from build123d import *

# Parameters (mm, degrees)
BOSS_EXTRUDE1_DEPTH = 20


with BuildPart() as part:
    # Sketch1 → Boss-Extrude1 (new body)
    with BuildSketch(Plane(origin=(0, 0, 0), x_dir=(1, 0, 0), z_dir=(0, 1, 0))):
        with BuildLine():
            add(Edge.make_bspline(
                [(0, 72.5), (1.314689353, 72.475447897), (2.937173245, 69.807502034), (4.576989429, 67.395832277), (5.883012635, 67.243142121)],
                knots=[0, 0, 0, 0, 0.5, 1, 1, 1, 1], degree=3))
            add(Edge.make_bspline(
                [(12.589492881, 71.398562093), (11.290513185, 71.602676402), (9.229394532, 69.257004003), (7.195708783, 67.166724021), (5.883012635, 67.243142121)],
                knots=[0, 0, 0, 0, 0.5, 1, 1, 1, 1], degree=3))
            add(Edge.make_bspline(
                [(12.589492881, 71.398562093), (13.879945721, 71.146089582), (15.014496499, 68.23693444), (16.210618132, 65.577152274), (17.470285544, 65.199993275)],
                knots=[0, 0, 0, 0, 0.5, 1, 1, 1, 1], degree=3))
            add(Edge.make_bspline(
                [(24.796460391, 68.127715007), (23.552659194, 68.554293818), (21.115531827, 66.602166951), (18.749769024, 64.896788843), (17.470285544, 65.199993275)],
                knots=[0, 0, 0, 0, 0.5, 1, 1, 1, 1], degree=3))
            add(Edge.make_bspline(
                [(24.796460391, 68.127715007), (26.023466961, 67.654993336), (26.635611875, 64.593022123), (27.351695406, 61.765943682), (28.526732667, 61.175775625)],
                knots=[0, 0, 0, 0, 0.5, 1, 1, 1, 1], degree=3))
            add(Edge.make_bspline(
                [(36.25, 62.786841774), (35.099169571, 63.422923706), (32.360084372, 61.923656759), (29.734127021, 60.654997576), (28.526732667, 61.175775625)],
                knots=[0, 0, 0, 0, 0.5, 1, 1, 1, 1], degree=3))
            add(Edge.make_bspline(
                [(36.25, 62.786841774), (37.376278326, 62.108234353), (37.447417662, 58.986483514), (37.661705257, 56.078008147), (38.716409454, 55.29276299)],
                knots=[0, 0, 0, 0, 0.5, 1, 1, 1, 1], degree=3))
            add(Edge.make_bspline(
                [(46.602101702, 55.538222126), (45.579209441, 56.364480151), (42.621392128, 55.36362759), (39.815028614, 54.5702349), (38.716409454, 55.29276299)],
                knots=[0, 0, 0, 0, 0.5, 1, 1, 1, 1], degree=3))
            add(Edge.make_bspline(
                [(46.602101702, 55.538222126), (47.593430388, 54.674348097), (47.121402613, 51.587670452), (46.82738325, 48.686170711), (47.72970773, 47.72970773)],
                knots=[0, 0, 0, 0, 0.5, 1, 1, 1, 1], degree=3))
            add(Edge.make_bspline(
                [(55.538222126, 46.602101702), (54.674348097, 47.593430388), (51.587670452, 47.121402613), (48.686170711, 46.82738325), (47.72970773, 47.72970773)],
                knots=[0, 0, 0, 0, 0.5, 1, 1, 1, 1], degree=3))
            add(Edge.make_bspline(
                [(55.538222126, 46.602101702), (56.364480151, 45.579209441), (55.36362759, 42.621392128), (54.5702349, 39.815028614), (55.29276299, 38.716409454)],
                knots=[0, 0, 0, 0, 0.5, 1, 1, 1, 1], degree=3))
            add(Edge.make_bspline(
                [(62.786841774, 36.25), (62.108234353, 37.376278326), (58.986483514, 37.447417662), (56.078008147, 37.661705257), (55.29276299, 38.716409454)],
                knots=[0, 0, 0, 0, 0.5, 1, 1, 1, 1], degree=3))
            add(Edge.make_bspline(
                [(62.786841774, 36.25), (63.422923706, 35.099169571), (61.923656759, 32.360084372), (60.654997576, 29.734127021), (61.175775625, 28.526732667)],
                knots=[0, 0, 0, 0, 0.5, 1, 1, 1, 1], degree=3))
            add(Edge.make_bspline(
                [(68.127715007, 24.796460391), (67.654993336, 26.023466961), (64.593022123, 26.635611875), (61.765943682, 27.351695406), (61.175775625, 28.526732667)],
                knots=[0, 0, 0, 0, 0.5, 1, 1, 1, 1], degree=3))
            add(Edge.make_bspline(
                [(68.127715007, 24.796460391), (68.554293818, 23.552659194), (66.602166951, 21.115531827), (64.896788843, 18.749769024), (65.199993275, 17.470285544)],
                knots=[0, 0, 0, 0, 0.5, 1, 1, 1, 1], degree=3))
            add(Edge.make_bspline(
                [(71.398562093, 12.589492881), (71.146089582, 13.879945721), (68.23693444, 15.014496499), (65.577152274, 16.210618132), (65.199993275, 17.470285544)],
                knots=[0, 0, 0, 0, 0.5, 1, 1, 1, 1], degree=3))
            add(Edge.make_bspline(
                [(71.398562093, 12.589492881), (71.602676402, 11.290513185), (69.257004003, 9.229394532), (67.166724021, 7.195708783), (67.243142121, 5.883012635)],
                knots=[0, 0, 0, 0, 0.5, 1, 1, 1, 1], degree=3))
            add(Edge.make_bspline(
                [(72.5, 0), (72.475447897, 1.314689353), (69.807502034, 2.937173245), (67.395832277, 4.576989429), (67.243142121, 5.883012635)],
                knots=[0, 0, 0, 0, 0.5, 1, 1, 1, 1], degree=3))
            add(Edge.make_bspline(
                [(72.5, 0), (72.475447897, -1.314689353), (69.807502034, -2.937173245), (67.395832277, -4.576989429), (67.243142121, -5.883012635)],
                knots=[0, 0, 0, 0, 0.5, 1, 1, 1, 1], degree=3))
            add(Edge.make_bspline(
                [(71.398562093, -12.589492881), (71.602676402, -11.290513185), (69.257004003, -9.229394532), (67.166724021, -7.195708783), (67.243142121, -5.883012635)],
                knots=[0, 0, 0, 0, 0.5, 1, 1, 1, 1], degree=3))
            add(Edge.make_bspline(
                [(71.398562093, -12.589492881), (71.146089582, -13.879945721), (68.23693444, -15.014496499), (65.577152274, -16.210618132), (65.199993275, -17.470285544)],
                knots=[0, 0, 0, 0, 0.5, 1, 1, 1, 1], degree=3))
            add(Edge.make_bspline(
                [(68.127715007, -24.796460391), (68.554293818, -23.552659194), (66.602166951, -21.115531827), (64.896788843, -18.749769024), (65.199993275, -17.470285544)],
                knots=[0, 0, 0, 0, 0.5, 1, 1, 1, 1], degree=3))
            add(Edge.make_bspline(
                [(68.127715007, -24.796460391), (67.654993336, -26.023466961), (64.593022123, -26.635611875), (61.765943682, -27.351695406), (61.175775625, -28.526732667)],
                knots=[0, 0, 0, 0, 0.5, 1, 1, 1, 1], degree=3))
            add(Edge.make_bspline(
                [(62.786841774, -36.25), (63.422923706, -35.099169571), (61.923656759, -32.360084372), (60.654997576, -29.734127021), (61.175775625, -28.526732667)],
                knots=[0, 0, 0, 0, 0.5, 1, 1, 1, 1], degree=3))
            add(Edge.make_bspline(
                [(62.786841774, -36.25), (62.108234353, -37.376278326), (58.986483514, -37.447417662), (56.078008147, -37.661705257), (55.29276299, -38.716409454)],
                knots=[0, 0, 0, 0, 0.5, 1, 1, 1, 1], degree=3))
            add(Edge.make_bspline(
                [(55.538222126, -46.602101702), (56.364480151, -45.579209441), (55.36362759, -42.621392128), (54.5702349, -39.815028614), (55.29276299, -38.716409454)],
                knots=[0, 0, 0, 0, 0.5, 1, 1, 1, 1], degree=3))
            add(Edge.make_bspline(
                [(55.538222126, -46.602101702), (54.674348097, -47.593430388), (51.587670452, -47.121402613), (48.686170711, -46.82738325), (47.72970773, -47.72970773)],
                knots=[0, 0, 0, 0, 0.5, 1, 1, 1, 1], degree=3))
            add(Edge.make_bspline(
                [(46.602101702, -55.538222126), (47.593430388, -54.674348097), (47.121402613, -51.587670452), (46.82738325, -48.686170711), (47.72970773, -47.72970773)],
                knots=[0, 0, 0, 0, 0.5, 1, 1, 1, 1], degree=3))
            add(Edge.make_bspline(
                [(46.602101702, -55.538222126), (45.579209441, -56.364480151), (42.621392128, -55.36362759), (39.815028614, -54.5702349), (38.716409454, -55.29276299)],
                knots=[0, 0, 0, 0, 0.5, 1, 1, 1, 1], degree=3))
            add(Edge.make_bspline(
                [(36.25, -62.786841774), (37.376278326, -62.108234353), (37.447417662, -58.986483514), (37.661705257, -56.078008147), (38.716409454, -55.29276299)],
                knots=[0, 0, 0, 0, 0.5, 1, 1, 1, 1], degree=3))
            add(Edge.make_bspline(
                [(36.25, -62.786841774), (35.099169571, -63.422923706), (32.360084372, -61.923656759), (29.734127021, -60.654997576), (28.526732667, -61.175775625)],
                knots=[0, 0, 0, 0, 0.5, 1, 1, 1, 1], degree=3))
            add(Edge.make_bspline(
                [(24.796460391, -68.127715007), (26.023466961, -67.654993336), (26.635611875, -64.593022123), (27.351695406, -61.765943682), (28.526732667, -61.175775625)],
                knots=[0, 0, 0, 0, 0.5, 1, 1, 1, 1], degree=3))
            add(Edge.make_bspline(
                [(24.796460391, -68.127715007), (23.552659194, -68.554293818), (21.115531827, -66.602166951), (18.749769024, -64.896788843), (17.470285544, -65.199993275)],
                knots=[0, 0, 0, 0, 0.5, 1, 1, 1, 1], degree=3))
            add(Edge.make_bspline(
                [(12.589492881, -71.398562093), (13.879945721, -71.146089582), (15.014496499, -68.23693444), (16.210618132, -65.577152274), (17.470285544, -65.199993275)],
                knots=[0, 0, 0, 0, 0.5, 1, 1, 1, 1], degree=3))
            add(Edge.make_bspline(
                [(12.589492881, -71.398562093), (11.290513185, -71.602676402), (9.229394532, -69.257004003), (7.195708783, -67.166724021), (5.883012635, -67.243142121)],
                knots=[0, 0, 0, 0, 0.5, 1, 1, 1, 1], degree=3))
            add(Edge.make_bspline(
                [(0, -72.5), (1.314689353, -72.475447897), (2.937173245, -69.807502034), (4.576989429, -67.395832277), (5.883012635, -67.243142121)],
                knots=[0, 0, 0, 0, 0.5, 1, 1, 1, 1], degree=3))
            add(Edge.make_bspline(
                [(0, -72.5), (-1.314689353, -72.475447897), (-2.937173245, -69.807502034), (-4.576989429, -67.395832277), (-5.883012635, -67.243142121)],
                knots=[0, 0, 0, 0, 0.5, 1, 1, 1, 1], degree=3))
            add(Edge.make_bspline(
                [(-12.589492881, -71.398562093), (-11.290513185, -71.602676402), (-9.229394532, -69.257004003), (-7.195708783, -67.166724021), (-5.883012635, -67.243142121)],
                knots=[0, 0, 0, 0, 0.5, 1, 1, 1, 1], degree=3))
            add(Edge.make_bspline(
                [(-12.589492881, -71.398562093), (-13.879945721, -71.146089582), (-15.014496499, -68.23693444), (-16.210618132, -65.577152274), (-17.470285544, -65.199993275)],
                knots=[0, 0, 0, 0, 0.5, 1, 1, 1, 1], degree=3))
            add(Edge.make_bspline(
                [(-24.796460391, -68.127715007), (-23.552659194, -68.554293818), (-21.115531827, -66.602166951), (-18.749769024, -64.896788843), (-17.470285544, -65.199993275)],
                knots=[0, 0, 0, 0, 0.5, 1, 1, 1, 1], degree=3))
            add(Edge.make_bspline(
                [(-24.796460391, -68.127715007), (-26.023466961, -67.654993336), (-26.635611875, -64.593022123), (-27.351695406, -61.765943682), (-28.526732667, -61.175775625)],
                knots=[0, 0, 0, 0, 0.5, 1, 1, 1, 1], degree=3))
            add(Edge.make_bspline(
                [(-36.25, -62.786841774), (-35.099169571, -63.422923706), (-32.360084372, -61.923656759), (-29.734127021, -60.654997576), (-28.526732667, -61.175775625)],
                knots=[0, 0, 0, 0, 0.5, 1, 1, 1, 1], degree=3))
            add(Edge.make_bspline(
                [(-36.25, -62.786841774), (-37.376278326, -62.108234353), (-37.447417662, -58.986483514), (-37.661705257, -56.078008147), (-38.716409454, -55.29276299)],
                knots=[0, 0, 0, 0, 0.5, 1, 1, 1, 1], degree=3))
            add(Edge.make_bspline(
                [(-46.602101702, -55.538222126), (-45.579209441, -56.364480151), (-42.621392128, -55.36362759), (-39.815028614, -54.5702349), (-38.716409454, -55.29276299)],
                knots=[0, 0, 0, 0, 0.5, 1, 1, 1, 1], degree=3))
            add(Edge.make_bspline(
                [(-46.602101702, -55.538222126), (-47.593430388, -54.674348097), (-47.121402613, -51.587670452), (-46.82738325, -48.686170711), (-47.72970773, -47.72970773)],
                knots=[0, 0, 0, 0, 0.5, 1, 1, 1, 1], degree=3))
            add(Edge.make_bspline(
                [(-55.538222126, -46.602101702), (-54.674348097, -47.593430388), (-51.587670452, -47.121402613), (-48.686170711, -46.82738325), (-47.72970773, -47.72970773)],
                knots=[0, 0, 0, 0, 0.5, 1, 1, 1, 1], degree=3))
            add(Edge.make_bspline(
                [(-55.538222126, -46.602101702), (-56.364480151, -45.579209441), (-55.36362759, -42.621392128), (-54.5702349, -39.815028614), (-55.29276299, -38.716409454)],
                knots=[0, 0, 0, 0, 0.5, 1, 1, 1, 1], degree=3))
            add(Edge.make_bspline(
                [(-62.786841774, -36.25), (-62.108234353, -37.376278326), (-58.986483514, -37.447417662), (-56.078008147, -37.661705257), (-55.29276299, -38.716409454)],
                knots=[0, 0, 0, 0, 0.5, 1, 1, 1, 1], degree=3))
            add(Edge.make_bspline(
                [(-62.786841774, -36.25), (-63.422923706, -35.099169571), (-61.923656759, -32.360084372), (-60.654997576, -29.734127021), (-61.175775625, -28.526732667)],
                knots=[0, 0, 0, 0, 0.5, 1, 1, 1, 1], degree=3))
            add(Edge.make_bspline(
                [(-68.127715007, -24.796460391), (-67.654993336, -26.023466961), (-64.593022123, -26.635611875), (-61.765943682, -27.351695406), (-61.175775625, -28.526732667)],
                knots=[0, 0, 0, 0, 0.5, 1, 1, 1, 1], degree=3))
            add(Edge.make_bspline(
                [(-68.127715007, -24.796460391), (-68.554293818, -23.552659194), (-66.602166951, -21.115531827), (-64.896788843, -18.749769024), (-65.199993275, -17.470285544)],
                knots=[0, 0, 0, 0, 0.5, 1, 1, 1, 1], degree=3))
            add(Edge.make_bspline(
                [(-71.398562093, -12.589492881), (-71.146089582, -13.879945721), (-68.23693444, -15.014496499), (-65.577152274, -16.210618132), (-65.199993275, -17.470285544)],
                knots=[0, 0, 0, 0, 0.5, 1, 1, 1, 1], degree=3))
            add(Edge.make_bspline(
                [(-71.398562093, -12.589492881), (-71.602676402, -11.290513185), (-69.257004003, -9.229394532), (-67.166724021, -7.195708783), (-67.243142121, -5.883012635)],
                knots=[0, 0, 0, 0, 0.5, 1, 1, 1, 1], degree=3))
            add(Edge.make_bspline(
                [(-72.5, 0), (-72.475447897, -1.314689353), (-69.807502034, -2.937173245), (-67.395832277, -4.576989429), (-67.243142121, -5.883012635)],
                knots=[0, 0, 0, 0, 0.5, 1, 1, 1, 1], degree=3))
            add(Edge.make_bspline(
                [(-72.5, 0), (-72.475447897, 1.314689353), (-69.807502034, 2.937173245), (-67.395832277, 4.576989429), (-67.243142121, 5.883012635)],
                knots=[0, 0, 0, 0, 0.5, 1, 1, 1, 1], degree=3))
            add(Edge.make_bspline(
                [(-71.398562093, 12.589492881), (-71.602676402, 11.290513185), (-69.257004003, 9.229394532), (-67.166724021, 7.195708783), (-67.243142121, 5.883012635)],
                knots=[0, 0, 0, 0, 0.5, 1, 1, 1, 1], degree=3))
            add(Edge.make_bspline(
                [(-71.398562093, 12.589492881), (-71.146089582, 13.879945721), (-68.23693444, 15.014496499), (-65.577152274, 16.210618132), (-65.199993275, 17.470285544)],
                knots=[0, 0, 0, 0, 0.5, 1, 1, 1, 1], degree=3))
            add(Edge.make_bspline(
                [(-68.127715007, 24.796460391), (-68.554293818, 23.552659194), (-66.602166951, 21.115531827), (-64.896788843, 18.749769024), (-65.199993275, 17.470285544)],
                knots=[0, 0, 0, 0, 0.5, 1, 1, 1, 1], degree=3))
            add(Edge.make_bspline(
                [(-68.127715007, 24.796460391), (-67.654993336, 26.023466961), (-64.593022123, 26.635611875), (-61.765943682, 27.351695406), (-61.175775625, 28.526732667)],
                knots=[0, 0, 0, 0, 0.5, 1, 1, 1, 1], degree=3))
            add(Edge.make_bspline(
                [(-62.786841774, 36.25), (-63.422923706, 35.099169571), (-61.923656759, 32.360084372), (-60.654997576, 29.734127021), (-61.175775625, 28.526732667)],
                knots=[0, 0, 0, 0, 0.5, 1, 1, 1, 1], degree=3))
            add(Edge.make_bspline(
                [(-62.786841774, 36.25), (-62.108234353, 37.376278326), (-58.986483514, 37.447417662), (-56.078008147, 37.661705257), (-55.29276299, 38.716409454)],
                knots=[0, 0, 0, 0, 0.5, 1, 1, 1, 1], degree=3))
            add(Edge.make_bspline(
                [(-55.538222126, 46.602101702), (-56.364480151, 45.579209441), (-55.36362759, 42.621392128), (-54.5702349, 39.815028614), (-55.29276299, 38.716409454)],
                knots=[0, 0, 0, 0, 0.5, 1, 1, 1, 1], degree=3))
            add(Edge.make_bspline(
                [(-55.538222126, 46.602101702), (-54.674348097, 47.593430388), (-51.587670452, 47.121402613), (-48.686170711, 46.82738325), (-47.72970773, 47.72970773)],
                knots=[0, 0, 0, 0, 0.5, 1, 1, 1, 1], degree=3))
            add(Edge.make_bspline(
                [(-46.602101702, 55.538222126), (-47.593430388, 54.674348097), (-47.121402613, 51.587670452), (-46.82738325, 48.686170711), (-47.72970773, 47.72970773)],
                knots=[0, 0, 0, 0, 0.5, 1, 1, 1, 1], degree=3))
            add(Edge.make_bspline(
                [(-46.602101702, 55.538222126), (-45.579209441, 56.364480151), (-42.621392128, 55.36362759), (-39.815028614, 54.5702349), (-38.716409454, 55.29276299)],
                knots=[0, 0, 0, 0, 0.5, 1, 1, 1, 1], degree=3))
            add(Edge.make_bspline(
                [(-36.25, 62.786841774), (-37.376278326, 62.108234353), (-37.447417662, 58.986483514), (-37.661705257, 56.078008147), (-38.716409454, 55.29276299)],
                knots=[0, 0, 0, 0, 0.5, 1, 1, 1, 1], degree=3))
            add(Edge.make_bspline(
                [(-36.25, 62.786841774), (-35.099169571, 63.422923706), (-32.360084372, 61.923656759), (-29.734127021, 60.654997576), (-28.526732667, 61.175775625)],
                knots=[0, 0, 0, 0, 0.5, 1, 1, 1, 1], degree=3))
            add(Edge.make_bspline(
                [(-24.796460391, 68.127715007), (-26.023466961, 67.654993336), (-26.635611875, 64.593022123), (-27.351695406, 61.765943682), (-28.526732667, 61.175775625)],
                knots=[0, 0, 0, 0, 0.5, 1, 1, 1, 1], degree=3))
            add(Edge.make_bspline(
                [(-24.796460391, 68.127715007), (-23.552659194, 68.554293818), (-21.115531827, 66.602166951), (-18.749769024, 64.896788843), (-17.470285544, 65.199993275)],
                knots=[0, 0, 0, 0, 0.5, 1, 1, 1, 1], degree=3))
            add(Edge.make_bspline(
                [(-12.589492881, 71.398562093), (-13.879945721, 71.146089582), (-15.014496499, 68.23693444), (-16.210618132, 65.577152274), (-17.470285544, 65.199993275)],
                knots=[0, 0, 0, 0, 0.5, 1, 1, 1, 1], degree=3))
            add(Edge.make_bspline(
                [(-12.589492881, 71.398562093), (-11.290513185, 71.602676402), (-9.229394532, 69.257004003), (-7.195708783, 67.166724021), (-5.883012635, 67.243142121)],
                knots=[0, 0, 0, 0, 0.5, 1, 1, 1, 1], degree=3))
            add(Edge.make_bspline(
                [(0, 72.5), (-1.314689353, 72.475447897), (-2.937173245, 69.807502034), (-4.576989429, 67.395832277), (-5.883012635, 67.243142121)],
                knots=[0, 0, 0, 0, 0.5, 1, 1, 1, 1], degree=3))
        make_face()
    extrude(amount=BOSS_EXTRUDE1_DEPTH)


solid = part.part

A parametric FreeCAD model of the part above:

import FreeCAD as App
import Part
import Sketcher

V = App.Vector

doc = App.newDocument("Part")
params = doc.addObject("Spreadsheet::Sheet", "Params")
for row, (alias, value) in enumerate([
    ("pad1_length", "20 mm"),
], start=1):
    params.set(f"A{row}", alias)
    params.set(f"B{row}", "=" + value)
    params.setAlias(f"B{row}", alias)

body = doc.addObject("PartDesign::Body", "Body")

# Sketch on XZ plane
sketch1 = body.newObject("Sketcher::SketchObject", "Sketch")
sketch1.AttachmentSupport = (doc.getObject("XZ_Plane"), [""])
sketch1.MapMode = "FlatFace"
sketch1.addGeometry([
    Part.BSplineCurve([V(0, -72.5, 0), V(1.314689, -72.475448, 0), V(2.937173, -69.807502, 0), V(4.576989, -67.395832, 0), V(5.883013, -67.243142, 0)], [4, 1, 4], [0, 0.5, 1], False, 3, [1, 1, 1, 1, 1], False),  # 0
    Part.BSplineCurve([V(0, -72.5, 0), V(-1.314689, -72.475448, 0), V(-2.937173, -69.807502, 0), V(-4.576989, -67.395832, 0), V(-5.883013, -67.243142, 0)], [4, 1, 4], [0, 0.5, 1], False, 3, [1, 1, 1, 1, 1], False),  # 1
    Part.BSplineCurve([V(-12.589493, -71.398562, 0), V(-11.290513, -71.602676, 0), V(-9.229395, -69.257004, 0), V(-7.195709, -67.166724, 0), V(-5.883013, -67.243142, 0)], [4, 1, 4], [0, 0.5, 1], False, 3, [1, 1, 1, 1, 1], False),  # 2
    Part.BSplineCurve([V(-12.589493, -71.398562, 0), V(-13.879946, -71.14609, 0), V(-15.014496, -68.236934, 0), V(-16.210618, -65.577152, 0), V(-17.470286, -65.199993, 0)], [4, 1, 4], [0, 0.5, 1], False, 3, [1, 1, 1, 1, 1], False),  # 3
    Part.BSplineCurve([V(-24.79646, -68.127715, 0), V(-23.552659, -68.554294, 0), V(-21.115532, -66.602167, 0), V(-18.749769, -64.896789, 0), V(-17.470286, -65.199993, 0)], [4, 1, 4], [0, 0.5, 1], False, 3, [1, 1, 1, 1, 1], False),  # 4
    Part.BSplineCurve([V(-24.79646, -68.127715, 0), V(-26.023467, -67.654993, 0), V(-26.635612, -64.593022, 0), V(-27.351695, -61.765944, 0), V(-28.526733, -61.175776, 0)], [4, 1, 4], [0, 0.5, 1], False, 3, [1, 1, 1, 1, 1], False),  # 5
    Part.BSplineCurve([V(-36.25, -62.786842, 0), V(-35.09917, -63.422924, 0), V(-32.360084, -61.923657, 0), V(-29.734127, -60.654998, 0), V(-28.526733, -61.175776, 0)], [4, 1, 4], [0, 0.5, 1], False, 3, [1, 1, 1, 1, 1], False),  # 6
    Part.BSplineCurve([V(-36.25, -62.786842, 0), V(-37.376278, -62.108234, 0), V(-37.447418, -58.986484, 0), V(-37.661705, -56.078008, 0), V(-38.716409, -55.292763, 0)], [4, 1, 4], [0, 0.5, 1], False, 3, [1, 1, 1, 1, 1], False),  # 7
    Part.BSplineCurve([V(-46.602102, -55.538222, 0), V(-45.579209, -56.36448, 0), V(-42.621392, -55.363628, 0), V(-39.815029, -54.570235, 0), V(-38.716409, -55.292763, 0)], [4, 1, 4], [0, 0.5, 1], False, 3, [1, 1, 1, 1, 1], False),  # 8
    Part.BSplineCurve([V(-46.602102, -55.538222, 0), V(-47.59343, -54.674348, 0), V(-47.121403, -51.58767, 0), V(-46.827383, -48.686171, 0), V(-47.729708, -47.729708, 0)], [4, 1, 4], [0, 0.5, 1], False, 3, [1, 1, 1, 1, 1], False),  # 9
    Part.BSplineCurve([V(-55.538222, -46.602102, 0), V(-54.674348, -47.59343, 0), V(-51.58767, -47.121403, 0), V(-48.686171, -46.827383, 0), V(-47.729708, -47.729708, 0)], [4, 1, 4], [0, 0.5, 1], False, 3, [1, 1, 1, 1, 1], False),  # 10
    Part.BSplineCurve([V(-55.538222, -46.602102, 0), V(-56.36448, -45.579209, 0), V(-55.363628, -42.621392, 0), V(-54.570235, -39.815029, 0), V(-55.292763, -38.716409, 0)], [4, 1, 4], [0, 0.5, 1], False, 3, [1, 1, 1, 1, 1], False),  # 11
    Part.BSplineCurve([V(-62.786842, -36.25, 0), V(-62.108234, -37.376278, 0), V(-58.986484, -37.447418, 0), V(-56.078008, -37.661705, 0), V(-55.292763, -38.716409, 0)], [4, 1, 4], [0, 0.5, 1], False, 3, [1, 1, 1, 1, 1], False),  # 12
    Part.BSplineCurve([V(-62.786842, -36.25, 0), V(-63.422924, -35.09917, 0), V(-61.923657, -32.360084, 0), V(-60.654998, -29.734127, 0), V(-61.175776, -28.526733, 0)], [4, 1, 4], [0, 0.5, 1], False, 3, [1, 1, 1, 1, 1], False),  # 13
    Part.BSplineCurve([V(-68.127715, -24.79646, 0), V(-67.654993, -26.023467, 0), V(-64.593022, -26.635612, 0), V(-61.765944, -27.351695, 0), V(-61.175776, -28.526733, 0)], [4, 1, 4], [0, 0.5, 1], False, 3, [1, 1, 1, 1, 1], False),  # 14
    Part.BSplineCurve([V(-68.127715, -24.79646, 0), V(-68.554294, -23.552659, 0), V(-66.602167, -21.115532, 0), V(-64.896789, -18.749769, 0), V(-65.199993, -17.470286, 0)], [4, 1, 4], [0, 0.5, 1], False, 3, [1, 1, 1, 1, 1], False),  # 15
    Part.BSplineCurve([V(-71.398562, -12.589493, 0), V(-71.14609, -13.879946, 0), V(-68.236934, -15.014496, 0), V(-65.577152, -16.210618, 0), V(-65.199993, -17.470286, 0)], [4, 1, 4], [0, 0.5, 1], False, 3, [1, 1, 1, 1, 1], False),  # 16
    Part.BSplineCurve([V(-71.398562, -12.589493, 0), V(-71.602676, -11.290513, 0), V(-69.257004, -9.229395, 0), V(-67.166724, -7.195709, 0), V(-67.243142, -5.883013, 0)], [4, 1, 4], [0, 0.5, 1], False, 3, [1, 1, 1, 1, 1], False),  # 17
    Part.BSplineCurve([V(-72.5, 0, 0), V(-72.475448, -1.314689, 0), V(-69.807502, -2.937173, 0), V(-67.395832, -4.576989, 0), V(-67.243142, -5.883013, 0)], [4, 1, 4], [0, 0.5, 1], False, 3, [1, 1, 1, 1, 1], False),  # 18
    Part.BSplineCurve([V(-72.5, 0, 0), V(-72.475448, 1.314689, 0), V(-69.807502, 2.937173, 0), V(-67.395832, 4.576989, 0), V(-67.243142, 5.883013, 0)], [4, 1, 4], [0, 0.5, 1], False, 3, [1, 1, 1, 1, 1], False),  # 19
    Part.BSplineCurve([V(-71.398562, 12.589493, 0), V(-71.602676, 11.290513, 0), V(-69.257004, 9.229395, 0), V(-67.166724, 7.195709, 0), V(-67.243142, 5.883013, 0)], [4, 1, 4], [0, 0.5, 1], False, 3, [1, 1, 1, 1, 1], False),  # 20
    Part.BSplineCurve([V(-71.398562, 12.589493, 0), V(-71.14609, 13.879946, 0), V(-68.236934, 15.014496, 0), V(-65.577152, 16.210618, 0), V(-65.199993, 17.470286, 0)], [4, 1, 4], [0, 0.5, 1], False, 3, [1, 1, 1, 1, 1], False),  # 21
    Part.BSplineCurve([V(-68.127715, 24.79646, 0), V(-68.554294, 23.552659, 0), V(-66.602167, 21.115532, 0), V(-64.896789, 18.749769, 0), V(-65.199993, 17.470286, 0)], [4, 1, 4], [0, 0.5, 1], False, 3, [1, 1, 1, 1, 1], False),  # 22
    Part.BSplineCurve([V(-68.127715, 24.79646, 0), V(-67.654993, 26.023467, 0), V(-64.593022, 26.635612, 0), V(-61.765944, 27.351695, 0), V(-61.175776, 28.526733, 0)], [4, 1, 4], [0, 0.5, 1], False, 3, [1, 1, 1, 1, 1], False),  # 23
    Part.BSplineCurve([V(-62.786842, 36.25, 0), V(-63.422924, 35.09917, 0), V(-61.923657, 32.360084, 0), V(-60.654998, 29.734127, 0), V(-61.175776, 28.526733, 0)], [4, 1, 4], [0, 0.5, 1], False, 3, [1, 1, 1, 1, 1], False),  # 24
    Part.BSplineCurve([V(-62.786842, 36.25, 0), V(-62.108234, 37.376278, 0), V(-58.986484, 37.447418, 0), V(-56.078008, 37.661705, 0), V(-55.292763, 38.716409, 0)], [4, 1, 4], [0, 0.5, 1], False, 3, [1, 1, 1, 1, 1], False),  # 25
    Part.BSplineCurve([V(-55.538222, 46.602102, 0), V(-56.36448, 45.579209, 0), V(-55.363628, 42.621392, 0), V(-54.570235, 39.815029, 0), V(-55.292763, 38.716409, 0)], [4, 1, 4], [0, 0.5, 1], False, 3, [1, 1, 1, 1, 1], False),  # 26
    Part.BSplineCurve([V(-55.538222, 46.602102, 0), V(-54.674348, 47.59343, 0), V(-51.58767, 47.121403, 0), V(-48.686171, 46.827383, 0), V(-47.729708, 47.729708, 0)], [4, 1, 4], [0, 0.5, 1], False, 3, [1, 1, 1, 1, 1], False),  # 27
    Part.BSplineCurve([V(-46.602102, 55.538222, 0), V(-47.59343, 54.674348, 0), V(-47.121403, 51.58767, 0), V(-46.827383, 48.686171, 0), V(-47.729708, 47.729708, 0)], [4, 1, 4], [0, 0.5, 1], False, 3, [1, 1, 1, 1, 1], False),  # 28
    Part.BSplineCurve([V(-46.602102, 55.538222, 0), V(-45.579209, 56.36448, 0), V(-42.621392, 55.363628, 0), V(-39.815029, 54.570235, 0), V(-38.716409, 55.292763, 0)], [4, 1, 4], [0, 0.5, 1], False, 3, [1, 1, 1, 1, 1], False),  # 29
    Part.BSplineCurve([V(-36.25, 62.786842, 0), V(-37.376278, 62.108234, 0), V(-37.447418, 58.986484, 0), V(-37.661705, 56.078008, 0), V(-38.716409, 55.292763, 0)], [4, 1, 4], [0, 0.5, 1], False, 3, [1, 1, 1, 1, 1], False),  # 30
    Part.BSplineCurve([V(-36.25, 62.786842, 0), V(-35.09917, 63.422924, 0), V(-32.360084, 61.923657, 0), V(-29.734127, 60.654998, 0), V(-28.526733, 61.175776, 0)], [4, 1, 4], [0, 0.5, 1], False, 3, [1, 1, 1, 1, 1], False),  # 31
    Part.BSplineCurve([V(-24.79646, 68.127715, 0), V(-26.023467, 67.654993, 0), V(-26.635612, 64.593022, 0), V(-27.351695, 61.765944, 0), V(-28.526733, 61.175776, 0)], [4, 1, 4], [0, 0.5, 1], False, 3, [1, 1, 1, 1, 1], False),  # 32
    Part.BSplineCurve([V(-24.79646, 68.127715, 0), V(-23.552659, 68.554294, 0), V(-21.115532, 66.602167, 0), V(-18.749769, 64.896789, 0), V(-17.470286, 65.199993, 0)], [4, 1, 4], [0, 0.5, 1], False, 3, [1, 1, 1, 1, 1], False),  # 33
    Part.BSplineCurve([V(-12.589493, 71.398562, 0), V(-13.879946, 71.14609, 0), V(-15.014496, 68.236934, 0), V(-16.210618, 65.577152, 0), V(-17.470286, 65.199993, 0)], [4, 1, 4], [0, 0.5, 1], False, 3, [1, 1, 1, 1, 1], False),  # 34
    Part.BSplineCurve([V(-12.589493, 71.398562, 0), V(-11.290513, 71.602676, 0), V(-9.229395, 69.257004, 0), V(-7.195709, 67.166724, 0), V(-5.883013, 67.243142, 0)], [4, 1, 4], [0, 0.5, 1], False, 3, [1, 1, 1, 1, 1], False),  # 35
    Part.BSplineCurve([V(0, 72.5, 0), V(-1.314689, 72.475448, 0), V(-2.937173, 69.807502, 0), V(-4.576989, 67.395832, 0), V(-5.883013, 67.243142, 0)], [4, 1, 4], [0, 0.5, 1], False, 3, [1, 1, 1, 1, 1], False),  # 36
    Part.BSplineCurve([V(0, 72.5, 0), V(1.314689, 72.475448, 0), V(2.937173, 69.807502, 0), V(4.576989, 67.395832, 0), V(5.883013, 67.243142, 0)], [4, 1, 4], [0, 0.5, 1], False, 3, [1, 1, 1, 1, 1], False),  # 37
    Part.BSplineCurve([V(12.589493, 71.398562, 0), V(11.290513, 71.602676, 0), V(9.229395, 69.257004, 0), V(7.195709, 67.166724, 0), V(5.883013, 67.243142, 0)], [4, 1, 4], [0, 0.5, 1], False, 3, [1, 1, 1, 1, 1], False),  # 38
    Part.BSplineCurve([V(12.589493, 71.398562, 0), V(13.879946, 71.14609, 0), V(15.014496, 68.236934, 0), V(16.210618, 65.577152, 0), V(17.470286, 65.199993, 0)], [4, 1, 4], [0, 0.5, 1], False, 3, [1, 1, 1, 1, 1], False),  # 39
    Part.BSplineCurve([V(24.79646, 68.127715, 0), V(23.552659, 68.554294, 0), V(21.115532, 66.602167, 0), V(18.749769, 64.896789, 0), V(17.470286, 65.199993, 0)], [4, 1, 4], [0, 0.5, 1], False, 3, [1, 1, 1, 1, 1], False),  # 40
    Part.BSplineCurve([V(24.79646, 68.127715, 0), V(26.023467, 67.654993, 0), V(26.635612, 64.593022, 0), V(27.351695, 61.765944, 0), V(28.526733, 61.175776, 0)], [4, 1, 4], [0, 0.5, 1], False, 3, [1, 1, 1, 1, 1], False),  # 41
    Part.BSplineCurve([V(36.25, 62.786842, 0), V(35.09917, 63.422924, 0), V(32.360084, 61.923657, 0), V(29.734127, 60.654998, 0), V(28.526733, 61.175776, 0)], [4, 1, 4], [0, 0.5, 1], False, 3, [1, 1, 1, 1, 1], False),  # 42
    Part.BSplineCurve([V(36.25, 62.786842, 0), V(37.376278, 62.108234, 0), V(37.447418, 58.986484, 0), V(37.661705, 56.078008, 0), V(38.716409, 55.292763, 0)], [4, 1, 4], [0, 0.5, 1], False, 3, [1, 1, 1, 1, 1], False),  # 43
    Part.BSplineCurve([V(46.602102, 55.538222, 0), V(45.579209, 56.36448, 0), V(42.621392, 55.363628, 0), V(39.815029, 54.570235, 0), V(38.716409, 55.292763, 0)], [4, 1, 4], [0, 0.5, 1], False, 3, [1, 1, 1, 1, 1], False),  # 44
    Part.BSplineCurve([V(46.602102, 55.538222, 0), V(47.59343, 54.674348, 0), V(47.121403, 51.58767, 0), V(46.827383, 48.686171, 0), V(47.729708, 47.729708, 0)], [4, 1, 4], [0, 0.5, 1], False, 3, [1, 1, 1, 1, 1], False),  # 45
    Part.BSplineCurve([V(55.538222, 46.602102, 0), V(54.674348, 47.59343, 0), V(51.58767, 47.121403, 0), V(48.686171, 46.827383, 0), V(47.729708, 47.729708, 0)], [4, 1, 4], [0, 0.5, 1], False, 3, [1, 1, 1, 1, 1], False),  # 46
    Part.BSplineCurve([V(55.538222, 46.602102, 0), V(56.36448, 45.579209, 0), V(55.363628, 42.621392, 0), V(54.570235, 39.815029, 0), V(55.292763, 38.716409, 0)], [4, 1, 4], [0, 0.5, 1], False, 3, [1, 1, 1, 1, 1], False),  # 47
    Part.BSplineCurve([V(62.786842, 36.25, 0), V(62.108234, 37.376278, 0), V(58.986484, 37.447418, 0), V(56.078008, 37.661705, 0), V(55.292763, 38.716409, 0)], [4, 1, 4], [0, 0.5, 1], False, 3, [1, 1, 1, 1, 1], False),  # 48
    Part.BSplineCurve([V(62.786842, 36.25, 0), V(63.422924, 35.09917, 0), V(61.923657, 32.360084, 0), V(60.654998, 29.734127, 0), V(61.175776, 28.526733, 0)], [4, 1, 4], [0, 0.5, 1], False, 3, [1, 1, 1, 1, 1], False),  # 49
    Part.BSplineCurve([V(68.127715, 24.79646, 0), V(67.654993, 26.023467, 0), V(64.593022, 26.635612, 0), V(61.765944, 27.351695, 0), V(61.175776, 28.526733, 0)], [4, 1, 4], [0, 0.5, 1], False, 3, [1, 1, 1, 1, 1], False),  # 50
    Part.BSplineCurve([V(68.127715, 24.79646, 0), V(68.554294, 23.552659, 0), V(66.602167, 21.115532, 0), V(64.896789, 18.749769, 0), V(65.199993, 17.470286, 0)], [4, 1, 4], [0, 0.5, 1], False, 3, [1, 1, 1, 1, 1], False),  # 51
    Part.BSplineCurve([V(71.398562, 12.589493, 0), V(71.14609, 13.879946, 0), V(68.236934, 15.014496, 0), V(65.577152, 16.210618, 0), V(65.199993, 17.470286, 0)], [4, 1, 4], [0, 0.5, 1], False, 3, [1, 1, 1, 1, 1], False),  # 52
    Part.BSplineCurve([V(71.398562, 12.589493, 0), V(71.602676, 11.290513, 0), V(69.257004, 9.229395, 0), V(67.166724, 7.195709, 0), V(67.243142, 5.883013, 0)], [4, 1, 4], [0, 0.5, 1], False, 3, [1, 1, 1, 1, 1], False),  # 53
    Part.BSplineCurve([V(72.5, 0, 0), V(72.475448, 1.314689, 0), V(69.807502, 2.937173, 0), V(67.395832, 4.576989, 0), V(67.243142, 5.883013, 0)], [4, 1, 4], [0, 0.5, 1], False, 3, [1, 1, 1, 1, 1], False),  # 54
    Part.BSplineCurve([V(72.5, 0, 0), V(72.475448, -1.314689, 0), V(69.807502, -2.937173, 0), V(67.395832, -4.576989, 0), V(67.243142, -5.883013, 0)], [4, 1, 4], [0, 0.5, 1], False, 3, [1, 1, 1, 1, 1], False),  # 55
    Part.BSplineCurve([V(71.398562, -12.589493, 0), V(71.602676, -11.290513, 0), V(69.257004, -9.229395, 0), V(67.166724, -7.195709, 0), V(67.243142, -5.883013, 0)], [4, 1, 4], [0, 0.5, 1], False, 3, [1, 1, 1, 1, 1], False),  # 56
    Part.BSplineCurve([V(71.398562, -12.589493, 0), V(71.14609, -13.879946, 0), V(68.236934, -15.014496, 0), V(65.577152, -16.210618, 0), V(65.199993, -17.470286, 0)], [4, 1, 4], [0, 0.5, 1], False, 3, [1, 1, 1, 1, 1], False),  # 57
    Part.BSplineCurve([V(68.127715, -24.79646, 0), V(68.554294, -23.552659, 0), V(66.602167, -21.115532, 0), V(64.896789, -18.749769, 0), V(65.199993, -17.470286, 0)], [4, 1, 4], [0, 0.5, 1], False, 3, [1, 1, 1, 1, 1], False),  # 58
    Part.BSplineCurve([V(68.127715, -24.79646, 0), V(67.654993, -26.023467, 0), V(64.593022, -26.635612, 0), V(61.765944, -27.351695, 0), V(61.175776, -28.526733, 0)], [4, 1, 4], [0, 0.5, 1], False, 3, [1, 1, 1, 1, 1], False),  # 59
    Part.BSplineCurve([V(62.786842, -36.25, 0), V(63.422924, -35.09917, 0), V(61.923657, -32.360084, 0), V(60.654998, -29.734127, 0), V(61.175776, -28.526733, 0)], [4, 1, 4], [0, 0.5, 1], False, 3, [1, 1, 1, 1, 1], False),  # 60
    Part.BSplineCurve([V(62.786842, -36.25, 0), V(62.108234, -37.376278, 0), V(58.986484, -37.447418, 0), V(56.078008, -37.661705, 0), V(55.292763, -38.716409, 0)], [4, 1, 4], [0, 0.5, 1], False, 3, [1, 1, 1, 1, 1], False),  # 61
    Part.BSplineCurve([V(55.538222, -46.602102, 0), V(56.36448, -45.579209, 0), V(55.363628, -42.621392, 0), V(54.570235, -39.815029, 0), V(55.292763, -38.716409, 0)], [4, 1, 4], [0, 0.5, 1], False, 3, [1, 1, 1, 1, 1], False),  # 62
    Part.BSplineCurve([V(55.538222, -46.602102, 0), V(54.674348, -47.59343, 0), V(51.58767, -47.121403, 0), V(48.686171, -46.827383, 0), V(47.729708, -47.729708, 0)], [4, 1, 4], [0, 0.5, 1], False, 3, [1, 1, 1, 1, 1], False),  # 63
    Part.BSplineCurve([V(46.602102, -55.538222, 0), V(47.59343, -54.674348, 0), V(47.121403, -51.58767, 0), V(46.827383, -48.686171, 0), V(47.729708, -47.729708, 0)], [4, 1, 4], [0, 0.5, 1], False, 3, [1, 1, 1, 1, 1], False),  # 64
    Part.BSplineCurve([V(46.602102, -55.538222, 0), V(45.579209, -56.36448, 0), V(42.621392, -55.363628, 0), V(39.815029, -54.570235, 0), V(38.716409, -55.292763, 0)], [4, 1, 4], [0, 0.5, 1], False, 3, [1, 1, 1, 1, 1], False),  # 65
    Part.BSplineCurve([V(36.25, -62.786842, 0), V(37.376278, -62.108234, 0), V(37.447418, -58.986484, 0), V(37.661705, -56.078008, 0), V(38.716409, -55.292763, 0)], [4, 1, 4], [0, 0.5, 1], False, 3, [1, 1, 1, 1, 1], False),  # 66
    Part.BSplineCurve([V(36.25, -62.786842, 0), V(35.09917, -63.422924, 0), V(32.360084, -61.923657, 0), V(29.734127, -60.654998, 0), V(28.526733, -61.175776, 0)], [4, 1, 4], [0, 0.5, 1], False, 3, [1, 1, 1, 1, 1], False),  # 67
    Part.BSplineCurve([V(24.79646, -68.127715, 0), V(26.023467, -67.654993, 0), V(26.635612, -64.593022, 0), V(27.351695, -61.765944, 0), V(28.526733, -61.175776, 0)], [4, 1, 4], [0, 0.5, 1], False, 3, [1, 1, 1, 1, 1], False),  # 68
    Part.BSplineCurve([V(24.79646, -68.127715, 0), V(23.552659, -68.554294, 0), V(21.115532, -66.602167, 0), V(18.749769, -64.896789, 0), V(17.470286, -65.199993, 0)], [4, 1, 4], [0, 0.5, 1], False, 3, [1, 1, 1, 1, 1], False),  # 69
    Part.BSplineCurve([V(12.589493, -71.398562, 0), V(13.879946, -71.14609, 0), V(15.014496, -68.236934, 0), V(16.210618, -65.577152, 0), V(17.470286, -65.199993, 0)], [4, 1, 4], [0, 0.5, 1], False, 3, [1, 1, 1, 1, 1], False),  # 70
    Part.BSplineCurve([V(12.589493, -71.398562, 0), V(11.290513, -71.602676, 0), V(9.229395, -69.257004, 0), V(7.195709, -67.166724, 0), V(5.883013, -67.243142, 0)], [4, 1, 4], [0, 0.5, 1], False, 3, [1, 1, 1, 1, 1], False),  # 71
], False)
sketch1.addConstraint([
    Sketcher.Constraint("Block", 0),
    Sketcher.Constraint("Block", 1),
    Sketcher.Constraint("Block", 2),
    Sketcher.Constraint("Block", 3),
    Sketcher.Constraint("Block", 4),
    Sketcher.Constraint("Block", 5),
    Sketcher.Constraint("Block", 6),
    Sketcher.Constraint("Block", 7),
    Sketcher.Constraint("Block", 8),
    Sketcher.Constraint("Block", 9),
    Sketcher.Constraint("Block", 10),
    Sketcher.Constraint("Block", 11),
    Sketcher.Constraint("Block", 12),
    Sketcher.Constraint("Block", 13),
    Sketcher.Constraint("Block", 14),
    Sketcher.Constraint("Block", 15),
    Sketcher.Constraint("Block", 16),
    Sketcher.Constraint("Block", 17),
    Sketcher.Constraint("Block", 18),
    Sketcher.Constraint("Block", 19),
    Sketcher.Constraint("Block", 20),
    Sketcher.Constraint("Block", 21),
    Sketcher.Constraint("Block", 22),
    Sketcher.Constraint("Block", 23),
    Sketcher.Constraint("Block", 24),
    Sketcher.Constraint("Block", 25),
    Sketcher.Constraint("Block", 26),
    Sketcher.Constraint("Block", 27),
    Sketcher.Constraint("Block", 28),
    Sketcher.Constraint("Block", 29),
    Sketcher.Constraint("Block", 30),
    Sketcher.Constraint("Block", 31),
    Sketcher.Constraint("Block", 32),
    Sketcher.Constraint("Block", 33),
    Sketcher.Constraint("Block", 34),
    Sketcher.Constraint("Block", 35),
    Sketcher.Constraint("Block", 36),
    Sketcher.Constraint("Block", 37),
    Sketcher.Constraint("Block", 38),
    Sketcher.Constraint("Block", 39),
    Sketcher.Constraint("Block", 40),
    Sketcher.Constraint("Block", 41),
    Sketcher.Constraint("Block", 42),
    Sketcher.Constraint("Block", 43),
    Sketcher.Constraint("Block", 44),
    Sketcher.Constraint("Block", 45),
    Sketcher.Constraint("Block", 46),
    Sketcher.Constraint("Block", 47),
    Sketcher.Constraint("Block", 48),
    Sketcher.Constraint("Block", 49),
    Sketcher.Constraint("Block", 50),
    Sketcher.Constraint("Block", 51),
    Sketcher.Constraint("Block", 52),
    Sketcher.Constraint("Block", 53),
    Sketcher.Constraint("Block", 54),
    Sketcher.Constraint("Block", 55),
    Sketcher.Constraint("Block", 56),
    Sketcher.Constraint("Block", 57),
    Sketcher.Constraint("Block", 58),
    Sketcher.Constraint("Block", 59),
    Sketcher.Constraint("Block", 60),
    Sketcher.Constraint("Block", 61),
    Sketcher.Constraint("Block", 62),
    Sketcher.Constraint("Block", 63),
    Sketcher.Constraint("Block", 64),
    Sketcher.Constraint("Block", 65),
    Sketcher.Constraint("Block", 66),
    Sketcher.Constraint("Block", 67),
    Sketcher.Constraint("Block", 68),
    Sketcher.Constraint("Block", 69),
    Sketcher.Constraint("Block", 70),
    Sketcher.Constraint("Block", 71),
])
pad1 = body.newObject("PartDesign::Pad", "Pad")
pad1.Profile = sketch1
pad1.setExpression("Length", "Params.pad1_length")
pad1.Reversed = True

doc.recompute()
